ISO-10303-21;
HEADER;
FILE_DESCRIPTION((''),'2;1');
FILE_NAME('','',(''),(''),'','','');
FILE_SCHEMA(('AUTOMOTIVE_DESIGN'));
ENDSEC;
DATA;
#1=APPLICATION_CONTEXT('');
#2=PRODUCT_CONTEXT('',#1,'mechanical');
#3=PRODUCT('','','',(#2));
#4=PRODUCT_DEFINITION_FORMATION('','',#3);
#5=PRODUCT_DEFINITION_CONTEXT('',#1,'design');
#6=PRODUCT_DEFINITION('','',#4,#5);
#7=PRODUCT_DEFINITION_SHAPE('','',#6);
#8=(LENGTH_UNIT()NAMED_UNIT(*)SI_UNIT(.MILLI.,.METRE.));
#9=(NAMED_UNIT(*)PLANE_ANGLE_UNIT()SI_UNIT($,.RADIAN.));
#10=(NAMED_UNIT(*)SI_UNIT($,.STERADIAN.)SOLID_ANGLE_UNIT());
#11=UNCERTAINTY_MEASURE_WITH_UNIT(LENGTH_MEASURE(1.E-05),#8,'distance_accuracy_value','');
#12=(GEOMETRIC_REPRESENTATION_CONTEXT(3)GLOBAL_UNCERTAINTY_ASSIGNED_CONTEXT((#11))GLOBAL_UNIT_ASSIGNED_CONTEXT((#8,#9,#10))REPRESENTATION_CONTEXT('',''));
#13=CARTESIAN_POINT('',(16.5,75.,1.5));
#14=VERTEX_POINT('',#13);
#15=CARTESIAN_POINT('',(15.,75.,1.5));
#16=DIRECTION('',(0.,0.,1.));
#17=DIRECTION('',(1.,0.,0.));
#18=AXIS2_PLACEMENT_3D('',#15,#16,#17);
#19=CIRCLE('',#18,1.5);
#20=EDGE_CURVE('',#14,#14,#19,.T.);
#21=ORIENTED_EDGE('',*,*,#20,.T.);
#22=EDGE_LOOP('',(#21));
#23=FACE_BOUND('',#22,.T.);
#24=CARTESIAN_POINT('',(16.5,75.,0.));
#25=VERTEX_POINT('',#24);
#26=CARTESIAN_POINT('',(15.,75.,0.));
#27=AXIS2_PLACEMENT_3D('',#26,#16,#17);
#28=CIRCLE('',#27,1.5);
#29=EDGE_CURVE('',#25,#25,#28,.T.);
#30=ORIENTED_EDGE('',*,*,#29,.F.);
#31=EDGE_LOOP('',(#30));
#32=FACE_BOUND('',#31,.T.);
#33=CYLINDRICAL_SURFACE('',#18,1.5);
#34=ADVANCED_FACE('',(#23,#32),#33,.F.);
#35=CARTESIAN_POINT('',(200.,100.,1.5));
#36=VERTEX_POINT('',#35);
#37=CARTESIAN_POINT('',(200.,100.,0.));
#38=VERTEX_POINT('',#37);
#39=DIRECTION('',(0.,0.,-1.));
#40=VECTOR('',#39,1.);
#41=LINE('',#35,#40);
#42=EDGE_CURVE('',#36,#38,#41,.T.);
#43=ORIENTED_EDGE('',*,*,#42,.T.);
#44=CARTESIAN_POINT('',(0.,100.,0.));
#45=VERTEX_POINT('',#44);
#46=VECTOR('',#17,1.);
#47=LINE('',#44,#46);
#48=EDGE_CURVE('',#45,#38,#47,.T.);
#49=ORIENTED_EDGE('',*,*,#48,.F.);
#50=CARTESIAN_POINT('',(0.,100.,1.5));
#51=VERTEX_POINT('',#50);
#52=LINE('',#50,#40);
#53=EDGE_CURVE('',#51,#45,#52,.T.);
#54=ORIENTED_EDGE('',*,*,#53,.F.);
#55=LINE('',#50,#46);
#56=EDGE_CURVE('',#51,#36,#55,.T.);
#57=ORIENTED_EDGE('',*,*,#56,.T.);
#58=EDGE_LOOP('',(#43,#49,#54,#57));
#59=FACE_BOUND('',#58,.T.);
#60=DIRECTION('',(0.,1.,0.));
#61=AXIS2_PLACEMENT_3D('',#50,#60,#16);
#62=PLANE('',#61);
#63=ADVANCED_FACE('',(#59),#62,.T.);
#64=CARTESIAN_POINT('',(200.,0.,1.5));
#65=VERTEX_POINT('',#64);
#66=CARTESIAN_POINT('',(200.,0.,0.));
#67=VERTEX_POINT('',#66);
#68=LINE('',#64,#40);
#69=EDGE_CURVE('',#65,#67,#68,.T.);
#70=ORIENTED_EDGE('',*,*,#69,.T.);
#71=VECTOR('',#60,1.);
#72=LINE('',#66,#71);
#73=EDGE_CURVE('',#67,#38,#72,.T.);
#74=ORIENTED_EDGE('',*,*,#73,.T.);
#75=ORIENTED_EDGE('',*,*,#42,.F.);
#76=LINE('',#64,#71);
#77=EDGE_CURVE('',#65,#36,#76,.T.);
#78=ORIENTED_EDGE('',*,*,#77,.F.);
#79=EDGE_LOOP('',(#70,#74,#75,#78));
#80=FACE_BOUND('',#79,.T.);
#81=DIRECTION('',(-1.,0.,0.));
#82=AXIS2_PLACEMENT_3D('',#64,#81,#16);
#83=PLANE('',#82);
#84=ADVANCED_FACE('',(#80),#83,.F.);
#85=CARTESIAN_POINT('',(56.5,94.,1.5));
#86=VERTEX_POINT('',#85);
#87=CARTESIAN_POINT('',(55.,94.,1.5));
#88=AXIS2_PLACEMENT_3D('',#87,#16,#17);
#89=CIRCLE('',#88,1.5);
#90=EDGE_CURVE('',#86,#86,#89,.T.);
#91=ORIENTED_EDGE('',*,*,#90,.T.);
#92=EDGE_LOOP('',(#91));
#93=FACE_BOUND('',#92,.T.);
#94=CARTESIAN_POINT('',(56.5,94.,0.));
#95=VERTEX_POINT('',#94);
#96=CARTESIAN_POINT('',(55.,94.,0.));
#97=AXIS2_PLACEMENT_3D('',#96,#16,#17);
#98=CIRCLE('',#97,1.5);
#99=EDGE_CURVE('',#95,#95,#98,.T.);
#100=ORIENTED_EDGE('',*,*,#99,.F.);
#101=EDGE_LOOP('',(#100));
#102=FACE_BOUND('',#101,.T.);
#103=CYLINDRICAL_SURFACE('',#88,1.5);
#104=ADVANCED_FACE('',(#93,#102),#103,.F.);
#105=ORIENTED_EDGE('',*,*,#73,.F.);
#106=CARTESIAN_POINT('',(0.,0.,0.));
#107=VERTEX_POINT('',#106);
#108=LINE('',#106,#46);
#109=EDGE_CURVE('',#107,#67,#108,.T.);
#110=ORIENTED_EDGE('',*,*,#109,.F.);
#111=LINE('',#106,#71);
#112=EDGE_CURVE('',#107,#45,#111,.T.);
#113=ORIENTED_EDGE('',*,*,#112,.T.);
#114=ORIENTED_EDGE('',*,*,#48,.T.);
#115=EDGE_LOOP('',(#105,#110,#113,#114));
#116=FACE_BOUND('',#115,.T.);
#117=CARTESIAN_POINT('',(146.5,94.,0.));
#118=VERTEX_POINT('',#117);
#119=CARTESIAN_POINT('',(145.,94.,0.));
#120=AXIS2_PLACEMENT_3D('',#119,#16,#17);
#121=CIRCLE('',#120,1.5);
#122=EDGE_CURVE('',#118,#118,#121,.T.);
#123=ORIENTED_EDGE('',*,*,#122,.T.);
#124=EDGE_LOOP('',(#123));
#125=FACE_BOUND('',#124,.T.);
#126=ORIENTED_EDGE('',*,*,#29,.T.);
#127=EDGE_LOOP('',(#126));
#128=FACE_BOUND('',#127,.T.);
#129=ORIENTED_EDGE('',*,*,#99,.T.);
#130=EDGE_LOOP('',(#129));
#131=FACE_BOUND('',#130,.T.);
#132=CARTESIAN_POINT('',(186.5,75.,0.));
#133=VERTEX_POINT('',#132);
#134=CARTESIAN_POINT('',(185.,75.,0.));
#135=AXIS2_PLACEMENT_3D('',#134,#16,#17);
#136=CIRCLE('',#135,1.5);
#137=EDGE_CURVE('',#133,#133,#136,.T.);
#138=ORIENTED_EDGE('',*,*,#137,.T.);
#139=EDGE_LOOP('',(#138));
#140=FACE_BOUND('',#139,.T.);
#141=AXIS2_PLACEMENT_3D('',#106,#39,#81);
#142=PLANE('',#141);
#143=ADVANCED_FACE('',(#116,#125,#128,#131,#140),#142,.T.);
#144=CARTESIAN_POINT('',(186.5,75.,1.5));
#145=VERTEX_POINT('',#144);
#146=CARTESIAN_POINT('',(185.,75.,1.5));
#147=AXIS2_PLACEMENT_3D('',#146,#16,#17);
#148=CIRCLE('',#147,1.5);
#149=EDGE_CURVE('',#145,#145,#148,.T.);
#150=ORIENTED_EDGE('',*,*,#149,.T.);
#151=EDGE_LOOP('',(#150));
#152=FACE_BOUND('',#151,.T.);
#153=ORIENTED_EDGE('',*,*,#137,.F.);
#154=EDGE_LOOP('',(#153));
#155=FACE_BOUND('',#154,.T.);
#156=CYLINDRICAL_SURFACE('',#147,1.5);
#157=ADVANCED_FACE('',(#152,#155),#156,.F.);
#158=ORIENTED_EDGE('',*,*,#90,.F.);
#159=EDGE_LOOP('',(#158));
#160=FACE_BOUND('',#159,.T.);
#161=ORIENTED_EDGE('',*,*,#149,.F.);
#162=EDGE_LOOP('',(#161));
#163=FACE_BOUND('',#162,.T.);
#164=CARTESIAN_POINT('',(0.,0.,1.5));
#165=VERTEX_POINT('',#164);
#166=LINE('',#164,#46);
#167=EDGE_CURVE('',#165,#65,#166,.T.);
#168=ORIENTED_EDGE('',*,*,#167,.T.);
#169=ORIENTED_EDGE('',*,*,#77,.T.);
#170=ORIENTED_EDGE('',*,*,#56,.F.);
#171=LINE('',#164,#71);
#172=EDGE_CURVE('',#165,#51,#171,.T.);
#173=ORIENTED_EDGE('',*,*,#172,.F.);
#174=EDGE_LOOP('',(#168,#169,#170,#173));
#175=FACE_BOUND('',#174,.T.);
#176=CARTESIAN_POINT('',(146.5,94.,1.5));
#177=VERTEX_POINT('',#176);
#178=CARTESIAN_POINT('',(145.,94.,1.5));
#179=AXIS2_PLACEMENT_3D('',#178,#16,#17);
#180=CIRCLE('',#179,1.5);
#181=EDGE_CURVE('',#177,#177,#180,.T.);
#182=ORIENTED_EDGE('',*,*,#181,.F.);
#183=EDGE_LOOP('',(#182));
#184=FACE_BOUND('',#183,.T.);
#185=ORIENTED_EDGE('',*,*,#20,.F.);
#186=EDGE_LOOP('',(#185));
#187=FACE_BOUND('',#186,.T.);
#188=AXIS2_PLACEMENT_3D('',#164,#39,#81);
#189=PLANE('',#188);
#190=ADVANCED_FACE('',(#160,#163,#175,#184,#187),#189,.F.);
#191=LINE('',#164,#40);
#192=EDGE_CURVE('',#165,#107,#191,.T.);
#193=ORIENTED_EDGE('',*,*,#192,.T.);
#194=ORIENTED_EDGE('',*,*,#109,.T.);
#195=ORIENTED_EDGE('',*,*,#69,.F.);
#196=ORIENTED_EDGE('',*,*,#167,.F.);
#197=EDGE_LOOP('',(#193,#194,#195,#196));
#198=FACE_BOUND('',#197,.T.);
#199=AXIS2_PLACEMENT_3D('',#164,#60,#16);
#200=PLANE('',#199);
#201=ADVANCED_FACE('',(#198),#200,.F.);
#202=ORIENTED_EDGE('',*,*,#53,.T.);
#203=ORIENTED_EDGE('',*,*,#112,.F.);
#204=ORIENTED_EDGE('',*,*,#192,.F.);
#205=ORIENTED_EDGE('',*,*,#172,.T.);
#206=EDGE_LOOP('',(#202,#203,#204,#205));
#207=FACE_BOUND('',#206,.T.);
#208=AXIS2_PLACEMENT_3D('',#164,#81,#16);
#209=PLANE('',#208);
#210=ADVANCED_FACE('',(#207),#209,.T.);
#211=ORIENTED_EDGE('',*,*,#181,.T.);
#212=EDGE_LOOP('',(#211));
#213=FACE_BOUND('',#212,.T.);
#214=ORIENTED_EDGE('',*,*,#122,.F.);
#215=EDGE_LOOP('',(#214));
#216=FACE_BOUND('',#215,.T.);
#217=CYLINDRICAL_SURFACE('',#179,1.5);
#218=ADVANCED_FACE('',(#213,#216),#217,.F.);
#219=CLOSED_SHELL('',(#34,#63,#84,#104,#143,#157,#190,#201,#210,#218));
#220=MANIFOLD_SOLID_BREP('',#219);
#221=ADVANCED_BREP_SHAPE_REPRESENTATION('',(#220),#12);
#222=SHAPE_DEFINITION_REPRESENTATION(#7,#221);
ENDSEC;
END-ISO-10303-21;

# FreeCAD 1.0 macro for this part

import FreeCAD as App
import Part
import Sketcher
from FreeCAD import Vector


def add_polygon(sketch, points):
    """Adds a closed chain of lines whose ends are joined by coincident constraints."""
    first, n = sketch.GeometryCount, len(points)
    for a, b in zip(points, points[1:] + points[:1]):
        sketch.addGeometry(Part.LineSegment(App.Vector(*a, 0), App.Vector(*b, 0)), False)
    for i in range(n):
        sketch.addConstraint(Sketcher.Constraint("Coincident", first + i, 2, first + (i + 1) % n, 1))

doc = App.newDocument("Part")
body = doc.addObject("PartDesign::Body", "Body")

# Sketch on XY plane
sketch1 = body.newObject("Sketcher::SketchObject", "Sketch")
sketch1.AttachmentSupport = (doc.getObject("XY_Plane"), [""])
sketch1.MapMode = "FlatFace"
add_polygon(sketch1, [(0, 100), (0, 0), (200, 0), (200, 100)])  # lines 0-3
sketch1.addConstraint(Sketcher.Constraint("Vertical", 0))
sketch1.addConstraint(Sketcher.Constraint("Horizontal", 1))
sketch1.addConstraint(Sketcher.Constraint("Vertical", 2))
sketch1.addConstraint(Sketcher.Constraint("Horizontal", 3))
sketch1.addConstraint(Sketcher.Constraint("Coincident", 0, 2, -1, 1))
sketch1.addConstraint(Sketcher.Constraint("DistanceX", 1, 1, 1, 2, 200.0))
sketch1.addConstraint(Sketcher.Constraint("DistanceY", 0, 2, 0, 1, 100.0))
pad1 = body.newObject("PartDesign::Pad", "Pad")
pad1.Profile = sketch1
pad1.Length = 1.5

# Sketch on XY plane
sketch2 = body.newObject("Sketcher::SketchObject", "Sketch001")
sketch2.AttachmentSupport = (doc.getObject("XY_Plane"), [""])
sketch2.MapMode = "FlatFace"
sketch2.AttachmentOffset = App.Placement(Vector(0, 0, 1.5), App.Rotation())
sketch2.addGeometry(Part.Circle(Vector(15, 75, 0), Vector(0, 0, 1), 1.5), False)
sketch2.addGeometry(Part.Circle(Vector(185, 75, 0), Vector(0, 0, 1), 1.5), False)
sketch2.addConstraint(Sketcher.Constraint("Equal", 0, 1))
sketch2.addConstraint(Sketcher.Constraint("Horizontal", 0, 3, 1, 3))
sketch2.addConstraint(Sketcher.Constraint("Diameter", 0, 3.0))
sketch2.addConstraint(Sketcher.Constraint("DistanceX", -1, 1, 0, 3, 15.0))
sketch2.addConstraint(Sketcher.Constraint("DistanceY", -1, 1, 0, 3, 75.0))
sketch2.addConstraint(Sketcher.Constraint("DistanceX", -1, 1, 1, 3, 185.0))
doc.recompute()
hole = body.newObject("PartDesign::Hole", "Hole")
hole.Profile = sketch2
hole.ThreadType = "None"
hole.Diameter = 3
hole.DepthType = "ThroughAll"

# Sketch on XY plane
sketch3 = body.newObject("Sketcher::SketchObject", "Sketch002")
sketch3.AttachmentSupport = (doc.getObject("XY_Plane"), [""])
sketch3.MapMode = "FlatFace"
sketch3.AttachmentOffset = App.Placement(Vector(0, 0, 1.5), App.Rotation())
sketch3.addGeometry(Part.Circle(Vector(55, 94, 0), Vector(0, 0, 1), 1.5), False)
sketch3.addGeometry(Part.Circle(Vector(145, 94, 0), Vector(0, 0, 1), 1.5), False)
sketch3.addConstraint(Sketcher.Constraint("Equal", 0, 1))
sketch3.addConstraint(Sketcher.Constraint("Horizontal", 0, 3, 1, 3))
sketch3.addConstraint(Sketcher.Constraint("Diameter", 0, 3.0))
sketch3.addConstraint(Sketcher.Constraint("DistanceX", -1, 1, 0, 3, 55.0))
sketch3.addConstraint(Sketcher.Constraint("DistanceY", -1, 1, 0, 3, 94.0))
sketch3.addConstraint(Sketcher.Constraint("DistanceX", -1, 1, 1, 3, 145.0))
doc.recompute()
hole2 = body.newObject("PartDesign::Hole", "Hole001")
hole2.Profile = sketch3
hole2.ThreadType = "None"
hole2.Diameter = 3
hole2.DepthType = "ThroughAll"

doc.recompute()
